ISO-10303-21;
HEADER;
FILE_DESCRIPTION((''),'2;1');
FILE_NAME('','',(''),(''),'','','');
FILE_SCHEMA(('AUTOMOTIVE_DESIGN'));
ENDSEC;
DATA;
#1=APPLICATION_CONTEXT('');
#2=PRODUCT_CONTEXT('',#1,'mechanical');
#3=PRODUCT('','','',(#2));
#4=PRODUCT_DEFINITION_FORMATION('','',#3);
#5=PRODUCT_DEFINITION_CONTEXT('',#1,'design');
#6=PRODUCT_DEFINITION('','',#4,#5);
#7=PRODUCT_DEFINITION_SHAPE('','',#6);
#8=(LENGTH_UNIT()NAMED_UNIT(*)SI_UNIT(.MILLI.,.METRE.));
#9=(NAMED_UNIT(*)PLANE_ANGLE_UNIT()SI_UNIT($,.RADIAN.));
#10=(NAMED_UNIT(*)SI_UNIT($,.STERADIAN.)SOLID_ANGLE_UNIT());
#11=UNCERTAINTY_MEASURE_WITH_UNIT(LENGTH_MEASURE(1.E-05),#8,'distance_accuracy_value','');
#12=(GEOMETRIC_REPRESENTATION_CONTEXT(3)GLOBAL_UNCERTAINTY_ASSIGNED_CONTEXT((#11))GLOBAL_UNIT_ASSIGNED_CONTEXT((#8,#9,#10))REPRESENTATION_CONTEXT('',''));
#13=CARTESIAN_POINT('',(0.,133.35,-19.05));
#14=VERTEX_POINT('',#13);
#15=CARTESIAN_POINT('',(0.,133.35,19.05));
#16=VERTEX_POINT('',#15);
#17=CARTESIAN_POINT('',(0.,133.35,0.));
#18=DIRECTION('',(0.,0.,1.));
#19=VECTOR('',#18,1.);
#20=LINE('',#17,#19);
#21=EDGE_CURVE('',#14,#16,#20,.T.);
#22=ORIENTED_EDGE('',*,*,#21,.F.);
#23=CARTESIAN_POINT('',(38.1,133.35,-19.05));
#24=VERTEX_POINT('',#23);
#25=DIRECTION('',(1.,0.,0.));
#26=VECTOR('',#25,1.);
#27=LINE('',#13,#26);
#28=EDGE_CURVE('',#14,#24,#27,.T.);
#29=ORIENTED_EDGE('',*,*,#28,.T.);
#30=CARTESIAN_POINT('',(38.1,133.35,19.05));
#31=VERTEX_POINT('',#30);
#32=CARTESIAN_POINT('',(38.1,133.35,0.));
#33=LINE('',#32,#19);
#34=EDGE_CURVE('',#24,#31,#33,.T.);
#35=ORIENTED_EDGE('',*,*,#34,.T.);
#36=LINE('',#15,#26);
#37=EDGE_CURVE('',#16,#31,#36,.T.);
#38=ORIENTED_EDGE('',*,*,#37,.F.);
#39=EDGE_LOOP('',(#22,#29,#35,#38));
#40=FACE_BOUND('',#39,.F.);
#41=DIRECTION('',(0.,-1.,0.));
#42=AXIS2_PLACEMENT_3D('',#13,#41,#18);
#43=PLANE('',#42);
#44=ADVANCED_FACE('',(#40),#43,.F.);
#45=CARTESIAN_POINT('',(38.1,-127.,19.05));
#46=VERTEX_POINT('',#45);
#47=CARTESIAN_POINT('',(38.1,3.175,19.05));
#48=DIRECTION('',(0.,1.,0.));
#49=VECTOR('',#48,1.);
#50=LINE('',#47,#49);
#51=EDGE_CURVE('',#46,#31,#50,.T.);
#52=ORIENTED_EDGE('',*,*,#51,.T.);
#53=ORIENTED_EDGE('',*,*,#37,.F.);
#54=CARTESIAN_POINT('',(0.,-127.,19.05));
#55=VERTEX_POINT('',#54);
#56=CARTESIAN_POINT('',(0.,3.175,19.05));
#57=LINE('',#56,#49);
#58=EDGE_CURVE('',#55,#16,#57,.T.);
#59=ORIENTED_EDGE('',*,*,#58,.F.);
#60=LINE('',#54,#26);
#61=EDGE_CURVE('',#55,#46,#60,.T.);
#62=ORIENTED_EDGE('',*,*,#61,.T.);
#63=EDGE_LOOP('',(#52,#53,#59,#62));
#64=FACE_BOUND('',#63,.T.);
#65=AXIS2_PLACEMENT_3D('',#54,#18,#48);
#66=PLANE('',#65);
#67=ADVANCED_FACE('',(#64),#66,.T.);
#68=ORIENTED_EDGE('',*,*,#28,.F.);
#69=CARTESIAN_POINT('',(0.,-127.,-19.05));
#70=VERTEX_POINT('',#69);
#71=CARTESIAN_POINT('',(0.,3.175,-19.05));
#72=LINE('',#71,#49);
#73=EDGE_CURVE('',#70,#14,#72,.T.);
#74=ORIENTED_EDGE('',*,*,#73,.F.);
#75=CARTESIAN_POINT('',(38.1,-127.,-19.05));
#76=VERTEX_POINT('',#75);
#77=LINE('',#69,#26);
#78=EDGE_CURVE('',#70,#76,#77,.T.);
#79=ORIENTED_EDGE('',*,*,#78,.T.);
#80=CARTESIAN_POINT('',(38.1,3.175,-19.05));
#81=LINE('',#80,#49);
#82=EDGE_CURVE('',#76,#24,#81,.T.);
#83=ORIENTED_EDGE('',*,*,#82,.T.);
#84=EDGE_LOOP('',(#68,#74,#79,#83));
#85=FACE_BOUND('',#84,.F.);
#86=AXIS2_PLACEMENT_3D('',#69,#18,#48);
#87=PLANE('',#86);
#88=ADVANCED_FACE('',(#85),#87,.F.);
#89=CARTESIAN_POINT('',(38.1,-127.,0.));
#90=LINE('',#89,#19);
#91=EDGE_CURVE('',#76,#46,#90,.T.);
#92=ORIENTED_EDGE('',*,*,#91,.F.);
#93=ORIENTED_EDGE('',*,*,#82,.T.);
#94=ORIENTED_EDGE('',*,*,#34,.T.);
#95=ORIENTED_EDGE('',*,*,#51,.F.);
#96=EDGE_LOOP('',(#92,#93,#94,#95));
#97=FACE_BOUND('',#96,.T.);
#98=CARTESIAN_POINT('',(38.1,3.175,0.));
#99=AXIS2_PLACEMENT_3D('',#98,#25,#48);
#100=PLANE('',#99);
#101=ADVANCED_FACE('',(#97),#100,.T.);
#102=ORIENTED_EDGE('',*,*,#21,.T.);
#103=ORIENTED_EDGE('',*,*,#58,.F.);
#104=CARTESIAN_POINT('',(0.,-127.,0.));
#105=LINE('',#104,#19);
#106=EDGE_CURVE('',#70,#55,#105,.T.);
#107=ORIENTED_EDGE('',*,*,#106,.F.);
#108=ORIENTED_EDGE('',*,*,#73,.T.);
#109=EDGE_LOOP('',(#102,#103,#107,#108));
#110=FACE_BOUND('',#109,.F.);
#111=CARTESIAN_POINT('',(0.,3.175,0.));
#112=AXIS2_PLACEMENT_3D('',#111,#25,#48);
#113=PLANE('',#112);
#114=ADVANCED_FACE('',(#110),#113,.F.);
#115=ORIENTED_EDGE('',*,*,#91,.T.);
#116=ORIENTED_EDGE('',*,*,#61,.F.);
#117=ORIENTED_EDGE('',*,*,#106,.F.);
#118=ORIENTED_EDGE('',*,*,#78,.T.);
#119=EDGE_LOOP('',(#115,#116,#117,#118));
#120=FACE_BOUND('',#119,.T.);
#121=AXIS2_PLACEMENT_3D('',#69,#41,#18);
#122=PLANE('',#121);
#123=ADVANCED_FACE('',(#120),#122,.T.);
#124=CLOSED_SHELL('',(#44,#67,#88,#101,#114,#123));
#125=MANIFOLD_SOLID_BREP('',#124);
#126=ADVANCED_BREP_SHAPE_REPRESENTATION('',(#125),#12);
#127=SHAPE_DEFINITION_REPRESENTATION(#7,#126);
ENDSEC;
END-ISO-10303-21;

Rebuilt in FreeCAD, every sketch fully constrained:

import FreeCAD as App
import Part
import Sketcher
Q = App.Units.Quantity


def add_polygon(sketch, points):
    """Adds a closed chain of lines whose ends are joined by coincident constraints."""
    first, n = sketch.GeometryCount, len(points)
    for a, b in zip(points, points[1:] + points[:1]):
        sketch.addGeometry(Part.LineSegment(App.Vector(*a, 0), App.Vector(*b, 0)), False)
    for i in range(n):
        sketch.addConstraint(Sketcher.Constraint("Coincident", first + i, 2, first + (i + 1) % n, 1))

doc = App.newDocument("Part")
params = doc.addObject("Spreadsheet::Sheet", "Params")
for row, (alias, value) in enumerate([
    ("sketch1_height", "1.5 in"),
    ("sketch1_width", "10.25 in"),
    ("pad1_length", "1.5 in"),
], start=1):
    params.set(f"A{row}", alias)
    params.set(f"B{row}", "=" + value)
    params.setAlias(f"B{row}", alias)

body = doc.addObject("PartDesign::Body", "Body")

# Sketch on YZ plane
sketch1 = doc.addObject("Sketcher::SketchObject", "Sketch")
body.addObject(sketch1)
sketch1.AttachmentSupport = (doc.YZ_Plane, [""])
sketch1.MapMode = "FlatFace"
add_polygon(sketch1, [(-127, 19.05), (-127, -19.05), (133.35, -19.05), (133.35, 19.05)])  # lines 0-3
sketch1.addConstraint([
    Sketcher.Constraint("Vertical", 0),
    Sketcher.Constraint("Horizontal", 1),
    Sketcher.Constraint("Vertical", 2),
    Sketcher.Constraint("Horizontal", 3),
    Sketcher.Constraint("DistanceY", 0, 2, 0, 1, Q("1.5 in")),
    Sketcher.Constraint("DistanceX", 0, 2, -1, 1, Q("5 in")),
    Sketcher.Constraint("DistanceX", 1, 1, 1, 2, Q("10.25 in")),
    Sketcher.Constraint("DistanceY", 0, 2, -1, 1, Q("0.75 in")),
])
sketch1.setExpression("Constraints[8]", "Params.sketch1_height")
sketch1.setExpression("Constraints[10]", "Params.sketch1_width")
pad1 = doc.addObject("PartDesign::Pad", "Pad")
body.addObject(pad1)
pad1.Profile = sketch1
pad1.setExpression("Length", "Params.pad1_length")

doc.recompute()
